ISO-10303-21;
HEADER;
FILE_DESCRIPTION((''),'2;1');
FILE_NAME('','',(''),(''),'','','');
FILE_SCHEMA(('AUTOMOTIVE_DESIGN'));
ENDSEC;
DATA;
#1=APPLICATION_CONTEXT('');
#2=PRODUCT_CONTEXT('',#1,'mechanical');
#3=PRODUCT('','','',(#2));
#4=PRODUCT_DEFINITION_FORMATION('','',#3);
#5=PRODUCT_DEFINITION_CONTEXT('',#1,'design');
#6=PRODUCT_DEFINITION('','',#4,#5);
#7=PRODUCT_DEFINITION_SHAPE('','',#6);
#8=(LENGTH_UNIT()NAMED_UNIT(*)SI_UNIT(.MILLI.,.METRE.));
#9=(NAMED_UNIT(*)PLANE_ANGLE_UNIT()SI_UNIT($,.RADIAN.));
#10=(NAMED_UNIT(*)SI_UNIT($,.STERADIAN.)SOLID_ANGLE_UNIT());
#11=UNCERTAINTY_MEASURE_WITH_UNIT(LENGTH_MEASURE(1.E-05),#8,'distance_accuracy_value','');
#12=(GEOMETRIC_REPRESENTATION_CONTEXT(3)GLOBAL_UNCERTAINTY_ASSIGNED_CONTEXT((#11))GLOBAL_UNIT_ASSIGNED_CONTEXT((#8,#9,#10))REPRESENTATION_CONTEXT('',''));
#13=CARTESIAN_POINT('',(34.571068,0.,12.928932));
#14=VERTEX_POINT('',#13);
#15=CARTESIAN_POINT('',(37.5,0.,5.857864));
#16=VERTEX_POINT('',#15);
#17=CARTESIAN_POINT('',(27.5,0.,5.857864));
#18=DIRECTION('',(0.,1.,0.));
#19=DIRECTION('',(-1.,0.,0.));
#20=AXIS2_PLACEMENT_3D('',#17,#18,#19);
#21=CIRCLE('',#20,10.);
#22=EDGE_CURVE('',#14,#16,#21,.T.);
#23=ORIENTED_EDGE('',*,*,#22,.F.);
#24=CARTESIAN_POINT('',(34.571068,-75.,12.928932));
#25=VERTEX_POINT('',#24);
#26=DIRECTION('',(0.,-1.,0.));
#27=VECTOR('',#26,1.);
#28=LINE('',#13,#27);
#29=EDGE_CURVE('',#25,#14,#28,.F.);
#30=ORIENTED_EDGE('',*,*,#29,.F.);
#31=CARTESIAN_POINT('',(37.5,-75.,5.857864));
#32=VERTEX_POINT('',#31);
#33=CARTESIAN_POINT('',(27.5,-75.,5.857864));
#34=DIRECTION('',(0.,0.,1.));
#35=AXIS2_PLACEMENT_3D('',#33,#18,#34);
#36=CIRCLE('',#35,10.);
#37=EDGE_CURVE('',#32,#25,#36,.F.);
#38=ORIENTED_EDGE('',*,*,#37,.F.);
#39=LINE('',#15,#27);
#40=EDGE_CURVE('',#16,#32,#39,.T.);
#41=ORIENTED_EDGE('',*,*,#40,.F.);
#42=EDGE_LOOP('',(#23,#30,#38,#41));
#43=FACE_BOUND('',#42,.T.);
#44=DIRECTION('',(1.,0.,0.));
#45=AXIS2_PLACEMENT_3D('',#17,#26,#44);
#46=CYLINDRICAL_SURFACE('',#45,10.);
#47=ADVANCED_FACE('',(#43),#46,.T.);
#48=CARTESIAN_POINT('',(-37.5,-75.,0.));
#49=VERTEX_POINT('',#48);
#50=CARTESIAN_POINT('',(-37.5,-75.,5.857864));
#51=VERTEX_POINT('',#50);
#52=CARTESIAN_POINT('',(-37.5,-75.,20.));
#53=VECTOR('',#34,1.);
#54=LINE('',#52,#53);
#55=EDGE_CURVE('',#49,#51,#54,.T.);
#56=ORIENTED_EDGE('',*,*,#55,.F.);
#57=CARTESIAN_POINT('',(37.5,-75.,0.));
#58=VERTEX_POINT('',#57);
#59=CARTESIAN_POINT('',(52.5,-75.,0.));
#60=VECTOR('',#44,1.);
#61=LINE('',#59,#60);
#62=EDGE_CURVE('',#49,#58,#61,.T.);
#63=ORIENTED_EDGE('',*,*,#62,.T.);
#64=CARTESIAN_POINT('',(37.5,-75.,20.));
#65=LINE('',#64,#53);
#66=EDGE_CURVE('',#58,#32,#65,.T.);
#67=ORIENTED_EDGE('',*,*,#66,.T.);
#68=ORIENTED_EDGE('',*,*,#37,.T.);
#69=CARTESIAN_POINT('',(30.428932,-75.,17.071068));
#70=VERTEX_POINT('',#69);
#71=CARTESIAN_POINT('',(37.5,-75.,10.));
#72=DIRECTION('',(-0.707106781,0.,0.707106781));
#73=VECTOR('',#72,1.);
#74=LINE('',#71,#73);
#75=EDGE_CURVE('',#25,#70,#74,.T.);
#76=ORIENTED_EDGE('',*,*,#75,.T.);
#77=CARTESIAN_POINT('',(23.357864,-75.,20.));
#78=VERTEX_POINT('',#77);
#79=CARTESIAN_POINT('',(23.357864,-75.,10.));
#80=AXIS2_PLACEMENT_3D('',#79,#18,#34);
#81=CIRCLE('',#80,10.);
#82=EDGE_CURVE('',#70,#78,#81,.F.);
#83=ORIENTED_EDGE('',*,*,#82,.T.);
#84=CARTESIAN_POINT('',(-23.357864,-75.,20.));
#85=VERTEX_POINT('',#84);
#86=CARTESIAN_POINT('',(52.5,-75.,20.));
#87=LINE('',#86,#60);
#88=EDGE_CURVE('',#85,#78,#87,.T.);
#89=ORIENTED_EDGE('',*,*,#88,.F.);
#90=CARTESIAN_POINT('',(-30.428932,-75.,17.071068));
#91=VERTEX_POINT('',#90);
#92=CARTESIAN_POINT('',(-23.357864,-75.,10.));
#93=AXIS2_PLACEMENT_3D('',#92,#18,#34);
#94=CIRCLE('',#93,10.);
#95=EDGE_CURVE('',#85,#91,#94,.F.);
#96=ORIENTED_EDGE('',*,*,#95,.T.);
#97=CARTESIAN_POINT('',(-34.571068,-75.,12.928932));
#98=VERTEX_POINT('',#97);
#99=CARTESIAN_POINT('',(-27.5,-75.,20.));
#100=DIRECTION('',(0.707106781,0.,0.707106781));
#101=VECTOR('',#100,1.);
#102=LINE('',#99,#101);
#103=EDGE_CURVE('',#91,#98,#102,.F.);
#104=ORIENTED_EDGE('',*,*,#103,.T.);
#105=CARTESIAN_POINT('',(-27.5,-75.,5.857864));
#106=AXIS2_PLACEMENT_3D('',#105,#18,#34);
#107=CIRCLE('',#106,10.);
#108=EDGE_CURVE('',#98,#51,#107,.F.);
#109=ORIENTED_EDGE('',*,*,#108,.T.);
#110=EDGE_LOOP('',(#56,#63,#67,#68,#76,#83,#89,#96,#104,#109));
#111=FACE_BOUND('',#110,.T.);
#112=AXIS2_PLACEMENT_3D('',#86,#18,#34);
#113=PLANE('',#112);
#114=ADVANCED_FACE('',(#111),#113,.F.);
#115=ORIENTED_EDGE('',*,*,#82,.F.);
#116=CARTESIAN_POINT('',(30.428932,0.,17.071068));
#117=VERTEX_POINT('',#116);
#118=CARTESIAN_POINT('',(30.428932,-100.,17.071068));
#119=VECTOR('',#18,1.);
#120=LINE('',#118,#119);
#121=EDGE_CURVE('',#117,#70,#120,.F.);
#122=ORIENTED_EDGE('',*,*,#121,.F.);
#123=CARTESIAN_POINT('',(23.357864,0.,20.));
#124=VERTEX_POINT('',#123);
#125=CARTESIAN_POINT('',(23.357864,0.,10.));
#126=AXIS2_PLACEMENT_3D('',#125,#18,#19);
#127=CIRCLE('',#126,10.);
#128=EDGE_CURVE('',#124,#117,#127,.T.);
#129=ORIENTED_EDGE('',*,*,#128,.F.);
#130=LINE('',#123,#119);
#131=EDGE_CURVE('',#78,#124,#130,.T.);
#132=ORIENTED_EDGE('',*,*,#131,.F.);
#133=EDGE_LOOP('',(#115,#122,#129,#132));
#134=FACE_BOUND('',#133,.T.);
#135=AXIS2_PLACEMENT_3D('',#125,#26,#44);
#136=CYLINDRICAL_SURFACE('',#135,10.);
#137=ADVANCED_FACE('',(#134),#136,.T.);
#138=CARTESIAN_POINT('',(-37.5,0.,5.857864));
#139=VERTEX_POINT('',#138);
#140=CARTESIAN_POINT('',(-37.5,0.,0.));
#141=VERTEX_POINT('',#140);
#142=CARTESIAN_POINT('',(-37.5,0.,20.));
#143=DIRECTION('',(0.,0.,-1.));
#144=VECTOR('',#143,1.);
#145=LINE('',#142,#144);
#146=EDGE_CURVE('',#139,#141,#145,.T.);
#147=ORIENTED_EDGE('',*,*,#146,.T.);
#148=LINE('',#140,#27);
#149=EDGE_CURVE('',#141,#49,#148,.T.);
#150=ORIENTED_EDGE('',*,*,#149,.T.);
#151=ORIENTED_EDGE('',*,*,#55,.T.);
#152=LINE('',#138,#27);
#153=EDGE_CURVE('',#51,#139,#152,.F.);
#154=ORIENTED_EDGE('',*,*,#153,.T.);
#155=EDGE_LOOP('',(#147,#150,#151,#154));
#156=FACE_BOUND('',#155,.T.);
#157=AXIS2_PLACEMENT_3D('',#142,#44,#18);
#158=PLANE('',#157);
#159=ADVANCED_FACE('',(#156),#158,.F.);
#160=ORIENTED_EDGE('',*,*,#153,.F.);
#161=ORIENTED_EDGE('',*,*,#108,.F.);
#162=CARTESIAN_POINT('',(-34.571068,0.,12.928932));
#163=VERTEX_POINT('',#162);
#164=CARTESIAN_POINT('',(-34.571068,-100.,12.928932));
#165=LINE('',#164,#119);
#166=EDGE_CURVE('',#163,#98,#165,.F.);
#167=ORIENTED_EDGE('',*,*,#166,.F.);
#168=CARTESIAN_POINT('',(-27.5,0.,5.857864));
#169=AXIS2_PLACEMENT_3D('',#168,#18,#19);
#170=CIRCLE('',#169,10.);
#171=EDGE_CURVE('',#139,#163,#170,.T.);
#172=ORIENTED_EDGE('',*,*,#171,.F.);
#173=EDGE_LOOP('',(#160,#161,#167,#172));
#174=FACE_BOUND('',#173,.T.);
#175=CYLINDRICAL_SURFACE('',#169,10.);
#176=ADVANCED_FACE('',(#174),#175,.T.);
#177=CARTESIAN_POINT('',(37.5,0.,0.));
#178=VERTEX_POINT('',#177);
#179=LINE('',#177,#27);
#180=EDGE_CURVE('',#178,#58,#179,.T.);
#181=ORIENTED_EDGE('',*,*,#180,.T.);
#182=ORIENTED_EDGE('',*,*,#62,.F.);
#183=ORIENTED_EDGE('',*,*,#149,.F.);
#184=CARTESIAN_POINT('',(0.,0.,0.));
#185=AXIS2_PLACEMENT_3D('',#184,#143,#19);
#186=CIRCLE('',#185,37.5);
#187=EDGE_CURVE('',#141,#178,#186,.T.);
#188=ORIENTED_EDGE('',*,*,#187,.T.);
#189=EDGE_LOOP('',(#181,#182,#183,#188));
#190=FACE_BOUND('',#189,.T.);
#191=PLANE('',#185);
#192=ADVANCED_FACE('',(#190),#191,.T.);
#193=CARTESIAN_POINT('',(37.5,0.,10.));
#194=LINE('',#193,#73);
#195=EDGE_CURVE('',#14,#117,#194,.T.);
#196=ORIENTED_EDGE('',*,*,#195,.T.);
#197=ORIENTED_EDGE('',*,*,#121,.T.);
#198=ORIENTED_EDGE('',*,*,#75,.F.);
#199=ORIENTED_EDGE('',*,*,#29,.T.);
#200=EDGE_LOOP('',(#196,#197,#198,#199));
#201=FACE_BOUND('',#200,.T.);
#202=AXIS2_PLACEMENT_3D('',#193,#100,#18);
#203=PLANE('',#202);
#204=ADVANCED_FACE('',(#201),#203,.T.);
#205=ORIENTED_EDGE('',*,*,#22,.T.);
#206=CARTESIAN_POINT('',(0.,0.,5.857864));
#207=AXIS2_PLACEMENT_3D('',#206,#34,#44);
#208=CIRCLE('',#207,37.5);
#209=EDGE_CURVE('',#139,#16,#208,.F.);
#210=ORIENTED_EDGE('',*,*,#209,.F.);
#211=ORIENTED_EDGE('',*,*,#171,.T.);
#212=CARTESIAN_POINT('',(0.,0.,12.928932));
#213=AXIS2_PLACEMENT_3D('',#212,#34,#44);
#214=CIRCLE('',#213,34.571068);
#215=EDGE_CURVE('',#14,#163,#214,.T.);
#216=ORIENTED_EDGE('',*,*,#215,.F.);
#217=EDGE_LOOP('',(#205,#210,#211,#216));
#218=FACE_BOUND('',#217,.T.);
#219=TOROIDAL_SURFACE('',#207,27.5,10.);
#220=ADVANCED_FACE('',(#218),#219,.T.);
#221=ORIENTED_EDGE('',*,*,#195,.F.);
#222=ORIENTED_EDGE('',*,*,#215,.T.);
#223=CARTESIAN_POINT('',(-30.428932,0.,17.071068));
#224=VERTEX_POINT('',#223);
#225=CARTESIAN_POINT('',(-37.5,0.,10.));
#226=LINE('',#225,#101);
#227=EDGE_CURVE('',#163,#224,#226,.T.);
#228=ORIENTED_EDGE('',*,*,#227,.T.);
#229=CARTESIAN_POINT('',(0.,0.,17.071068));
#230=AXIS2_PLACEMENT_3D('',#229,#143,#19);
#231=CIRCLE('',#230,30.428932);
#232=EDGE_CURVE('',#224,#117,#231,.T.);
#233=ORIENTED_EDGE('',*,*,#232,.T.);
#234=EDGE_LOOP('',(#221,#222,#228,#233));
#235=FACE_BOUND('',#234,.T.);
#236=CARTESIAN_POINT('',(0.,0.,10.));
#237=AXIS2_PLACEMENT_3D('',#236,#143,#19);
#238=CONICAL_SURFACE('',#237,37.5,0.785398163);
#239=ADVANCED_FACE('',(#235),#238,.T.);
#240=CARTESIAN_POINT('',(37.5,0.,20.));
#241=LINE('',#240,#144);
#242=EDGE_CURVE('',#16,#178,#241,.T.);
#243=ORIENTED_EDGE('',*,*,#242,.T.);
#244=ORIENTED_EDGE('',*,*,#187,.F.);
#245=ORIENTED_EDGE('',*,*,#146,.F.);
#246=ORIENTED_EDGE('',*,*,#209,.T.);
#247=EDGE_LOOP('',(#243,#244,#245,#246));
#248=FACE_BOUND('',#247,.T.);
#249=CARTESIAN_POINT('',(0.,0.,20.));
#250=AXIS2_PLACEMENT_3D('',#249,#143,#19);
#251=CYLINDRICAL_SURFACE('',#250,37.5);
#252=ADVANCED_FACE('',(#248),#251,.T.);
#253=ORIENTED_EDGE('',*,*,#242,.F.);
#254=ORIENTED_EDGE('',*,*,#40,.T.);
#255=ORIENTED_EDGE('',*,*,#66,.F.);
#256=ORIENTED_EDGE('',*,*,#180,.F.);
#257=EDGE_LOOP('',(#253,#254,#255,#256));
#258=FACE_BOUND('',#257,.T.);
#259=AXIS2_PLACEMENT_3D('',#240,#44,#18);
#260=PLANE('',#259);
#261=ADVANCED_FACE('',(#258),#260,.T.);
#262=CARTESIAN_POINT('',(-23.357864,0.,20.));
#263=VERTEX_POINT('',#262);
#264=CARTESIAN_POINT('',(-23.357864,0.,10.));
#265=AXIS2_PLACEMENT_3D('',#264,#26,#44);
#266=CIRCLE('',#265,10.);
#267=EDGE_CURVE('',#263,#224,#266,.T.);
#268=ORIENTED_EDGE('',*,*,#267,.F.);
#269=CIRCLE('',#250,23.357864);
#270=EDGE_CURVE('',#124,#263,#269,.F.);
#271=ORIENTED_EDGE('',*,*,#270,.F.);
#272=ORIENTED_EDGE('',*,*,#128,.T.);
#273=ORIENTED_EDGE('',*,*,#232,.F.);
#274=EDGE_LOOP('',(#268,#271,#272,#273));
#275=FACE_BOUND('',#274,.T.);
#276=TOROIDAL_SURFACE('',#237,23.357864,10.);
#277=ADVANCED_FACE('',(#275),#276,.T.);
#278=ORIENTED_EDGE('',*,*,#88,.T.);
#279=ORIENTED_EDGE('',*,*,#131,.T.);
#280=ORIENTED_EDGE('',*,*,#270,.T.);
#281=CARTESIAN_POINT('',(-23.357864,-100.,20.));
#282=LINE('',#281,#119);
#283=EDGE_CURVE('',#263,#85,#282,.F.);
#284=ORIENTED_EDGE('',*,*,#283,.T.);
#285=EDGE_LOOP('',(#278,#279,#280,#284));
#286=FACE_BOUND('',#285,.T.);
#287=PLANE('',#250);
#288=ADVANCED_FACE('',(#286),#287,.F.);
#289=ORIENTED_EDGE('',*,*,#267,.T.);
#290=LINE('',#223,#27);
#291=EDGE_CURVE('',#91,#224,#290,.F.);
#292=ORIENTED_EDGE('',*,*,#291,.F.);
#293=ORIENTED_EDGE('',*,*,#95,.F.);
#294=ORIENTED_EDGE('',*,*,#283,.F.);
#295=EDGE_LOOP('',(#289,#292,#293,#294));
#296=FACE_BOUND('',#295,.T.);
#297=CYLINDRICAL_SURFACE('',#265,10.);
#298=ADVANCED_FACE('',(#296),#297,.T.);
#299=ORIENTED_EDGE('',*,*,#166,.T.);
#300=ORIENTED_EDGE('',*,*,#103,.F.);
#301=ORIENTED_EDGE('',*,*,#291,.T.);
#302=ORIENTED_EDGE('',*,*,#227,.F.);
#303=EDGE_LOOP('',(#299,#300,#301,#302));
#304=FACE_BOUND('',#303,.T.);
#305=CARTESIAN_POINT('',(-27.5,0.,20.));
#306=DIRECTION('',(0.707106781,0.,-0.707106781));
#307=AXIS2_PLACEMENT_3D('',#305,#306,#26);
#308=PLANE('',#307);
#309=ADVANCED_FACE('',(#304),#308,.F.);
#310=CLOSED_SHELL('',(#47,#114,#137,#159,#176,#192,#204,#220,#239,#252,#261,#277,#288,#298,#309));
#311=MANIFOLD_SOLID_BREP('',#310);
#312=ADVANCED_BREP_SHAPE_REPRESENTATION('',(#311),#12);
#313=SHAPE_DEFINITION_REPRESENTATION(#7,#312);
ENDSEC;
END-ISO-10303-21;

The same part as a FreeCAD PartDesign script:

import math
import FreeCAD as App
import Part
import Sketcher


def edges_at(feature, points):
    """Names of the edges that pass closest to the given points."""
    edges = feature.Shape.Edges
    near = lambda p: min(range(len(edges)), key=lambda i: edges[i].distToShape(Part.Vertex(*p))[0])
    return sorted({f"Edge{near(p) + 1}" for p in points})

doc = App.newDocument("Part")
body = doc.addObject("PartDesign::Body", "Body")

sketch1 = doc.addObject("Sketcher::SketchObject", "Sketch")
body.addObject(sketch1)
sketch1.AttachmentSupport = (doc.XY_Plane, [""])
sketch1.MapMode = "FlatFace"
sketch1.addGeometry([
    Part.LineSegment(App.Vector(-38, 0, 0), App.Vector(-38, -100, 0)),
    Part.LineSegment(App.Vector(-38, -100, 0), App.Vector(38, -100, 0)),
    Part.LineSegment(App.Vector(38, -100, 0), App.Vector(38, 0, 0)),
    Part.ArcOfCircle(Part.Circle(App.Vector(0, 0, 0), App.Vector(0, 0, 1), 38), math.radians(0), math.radians(180)),
], False)
sketch1.addConstraint([
    Sketcher.Constraint("Coincident", 0, 2, 1, 1),
    Sketcher.Constraint("Coincident", 1, 2, 2, 1),
    Sketcher.Constraint("Tangent", 2, 2, 3, 1),
    Sketcher.Constraint("Tangent", 3, 2, 0, 1),
    Sketcher.Constraint("Vertical", 0),
    Sketcher.Constraint("Horizontal", 1),
    Sketcher.Constraint("Vertical", 2),
    Sketcher.Constraint("Coincident", 3, 3, -1, 1),
    Sketcher.Constraint("Radius", 3, 37.5),
    Sketcher.Constraint("DistanceY", 0, 2, 0, 1, 100.0),
])
pad1 = doc.addObject("PartDesign::Pad", "Pad")
body.addObject(pad1)
pad1.Profile = sketch1
pad1.Length = 20
doc.recompute()

chamfer = doc.addObject("PartDesign::Chamfer", "Chamfer")
body.addObject(chamfer)
chamfer.Base = (pad1, edges_at(pad1, [(-37.5, -50, 20), (0, 37.5, 20), (37.5, -50, 20)]))
chamfer.Size = 10
doc.recompute()

fillet = doc.addObject("PartDesign::Fillet", "Fillet")
body.addObject(fillet)
fillet.Base = (chamfer, edges_at(chamfer, [(-27.5, -50, 20), (0, 27.5, 20), (27.5, -50, 20)]))
fillet.Radius = 10
doc.recompute()

fillet2 = doc.addObject("PartDesign::Fillet", "Fillet001")
body.addObject(fillet2)
fillet2.Base = (fillet, edges_at(fillet, [(37.5, -50, 10), (0, 37.5, 10), (-37.5, -50, 10)]))
fillet2.Radius = 10

sketch2 = doc.addObject("Sketcher::SketchObject", "Sketch001")
body.addObject(sketch2)
sketch2.AttachmentSupport = (doc.XY_Plane, [""])
sketch2.MapMode = "FlatFace"
sketch2.addGeometry([
    Part.LineSegment(App.Vector(52, -75, 0), App.Vector(52, -105, 0)),
    Part.LineSegment(App.Vector(52, -105, 0), App.Vector(-52, -105, 0)),
    Part.LineSegment(App.Vector(-52, -105, 0), App.Vector(-52, -75, 0)),
    Part.LineSegment(App.Vector(-52, -75, 0), App.Vector(52, -75, 0)),
], False)
sketch2.addConstraint([
    Sketcher.Constraint("Coincident", 0, 2, 1, 1),
    Sketcher.Constraint("Coincident", 1, 2, 2, 1),
    Sketcher.Constraint("Coincident", 2, 2, 3, 1),
    Sketcher.Constraint("Coincident", 3, 2, 0, 1),
    Sketcher.Constraint("Vertical", 0),
    Sketcher.Constraint("Horizontal", 1),
    Sketcher.Constraint("Vertical", 2),
    Sketcher.Constraint("Horizontal", 3),
    Sketcher.Constraint("DistanceX", 1, 2, 1, 1, 105.0),
    Sketcher.Constraint("DistanceY", 0, 2, 0, 1, 30.0),
    Sketcher.Constraint("DistanceY", 0, 2, -1, 1, 105.0),
    Sketcher.Constraint("DistanceX", -1, 1, 0, 2, 52.5),
])
pocket1 = doc.addObject("PartDesign::Pocket", "Pocket")
body.addObject(pocket1)
pocket1.Profile = sketch2
pocket1.Type = "ThroughAll"
pocket1.Reversed = True

doc.recompute()
